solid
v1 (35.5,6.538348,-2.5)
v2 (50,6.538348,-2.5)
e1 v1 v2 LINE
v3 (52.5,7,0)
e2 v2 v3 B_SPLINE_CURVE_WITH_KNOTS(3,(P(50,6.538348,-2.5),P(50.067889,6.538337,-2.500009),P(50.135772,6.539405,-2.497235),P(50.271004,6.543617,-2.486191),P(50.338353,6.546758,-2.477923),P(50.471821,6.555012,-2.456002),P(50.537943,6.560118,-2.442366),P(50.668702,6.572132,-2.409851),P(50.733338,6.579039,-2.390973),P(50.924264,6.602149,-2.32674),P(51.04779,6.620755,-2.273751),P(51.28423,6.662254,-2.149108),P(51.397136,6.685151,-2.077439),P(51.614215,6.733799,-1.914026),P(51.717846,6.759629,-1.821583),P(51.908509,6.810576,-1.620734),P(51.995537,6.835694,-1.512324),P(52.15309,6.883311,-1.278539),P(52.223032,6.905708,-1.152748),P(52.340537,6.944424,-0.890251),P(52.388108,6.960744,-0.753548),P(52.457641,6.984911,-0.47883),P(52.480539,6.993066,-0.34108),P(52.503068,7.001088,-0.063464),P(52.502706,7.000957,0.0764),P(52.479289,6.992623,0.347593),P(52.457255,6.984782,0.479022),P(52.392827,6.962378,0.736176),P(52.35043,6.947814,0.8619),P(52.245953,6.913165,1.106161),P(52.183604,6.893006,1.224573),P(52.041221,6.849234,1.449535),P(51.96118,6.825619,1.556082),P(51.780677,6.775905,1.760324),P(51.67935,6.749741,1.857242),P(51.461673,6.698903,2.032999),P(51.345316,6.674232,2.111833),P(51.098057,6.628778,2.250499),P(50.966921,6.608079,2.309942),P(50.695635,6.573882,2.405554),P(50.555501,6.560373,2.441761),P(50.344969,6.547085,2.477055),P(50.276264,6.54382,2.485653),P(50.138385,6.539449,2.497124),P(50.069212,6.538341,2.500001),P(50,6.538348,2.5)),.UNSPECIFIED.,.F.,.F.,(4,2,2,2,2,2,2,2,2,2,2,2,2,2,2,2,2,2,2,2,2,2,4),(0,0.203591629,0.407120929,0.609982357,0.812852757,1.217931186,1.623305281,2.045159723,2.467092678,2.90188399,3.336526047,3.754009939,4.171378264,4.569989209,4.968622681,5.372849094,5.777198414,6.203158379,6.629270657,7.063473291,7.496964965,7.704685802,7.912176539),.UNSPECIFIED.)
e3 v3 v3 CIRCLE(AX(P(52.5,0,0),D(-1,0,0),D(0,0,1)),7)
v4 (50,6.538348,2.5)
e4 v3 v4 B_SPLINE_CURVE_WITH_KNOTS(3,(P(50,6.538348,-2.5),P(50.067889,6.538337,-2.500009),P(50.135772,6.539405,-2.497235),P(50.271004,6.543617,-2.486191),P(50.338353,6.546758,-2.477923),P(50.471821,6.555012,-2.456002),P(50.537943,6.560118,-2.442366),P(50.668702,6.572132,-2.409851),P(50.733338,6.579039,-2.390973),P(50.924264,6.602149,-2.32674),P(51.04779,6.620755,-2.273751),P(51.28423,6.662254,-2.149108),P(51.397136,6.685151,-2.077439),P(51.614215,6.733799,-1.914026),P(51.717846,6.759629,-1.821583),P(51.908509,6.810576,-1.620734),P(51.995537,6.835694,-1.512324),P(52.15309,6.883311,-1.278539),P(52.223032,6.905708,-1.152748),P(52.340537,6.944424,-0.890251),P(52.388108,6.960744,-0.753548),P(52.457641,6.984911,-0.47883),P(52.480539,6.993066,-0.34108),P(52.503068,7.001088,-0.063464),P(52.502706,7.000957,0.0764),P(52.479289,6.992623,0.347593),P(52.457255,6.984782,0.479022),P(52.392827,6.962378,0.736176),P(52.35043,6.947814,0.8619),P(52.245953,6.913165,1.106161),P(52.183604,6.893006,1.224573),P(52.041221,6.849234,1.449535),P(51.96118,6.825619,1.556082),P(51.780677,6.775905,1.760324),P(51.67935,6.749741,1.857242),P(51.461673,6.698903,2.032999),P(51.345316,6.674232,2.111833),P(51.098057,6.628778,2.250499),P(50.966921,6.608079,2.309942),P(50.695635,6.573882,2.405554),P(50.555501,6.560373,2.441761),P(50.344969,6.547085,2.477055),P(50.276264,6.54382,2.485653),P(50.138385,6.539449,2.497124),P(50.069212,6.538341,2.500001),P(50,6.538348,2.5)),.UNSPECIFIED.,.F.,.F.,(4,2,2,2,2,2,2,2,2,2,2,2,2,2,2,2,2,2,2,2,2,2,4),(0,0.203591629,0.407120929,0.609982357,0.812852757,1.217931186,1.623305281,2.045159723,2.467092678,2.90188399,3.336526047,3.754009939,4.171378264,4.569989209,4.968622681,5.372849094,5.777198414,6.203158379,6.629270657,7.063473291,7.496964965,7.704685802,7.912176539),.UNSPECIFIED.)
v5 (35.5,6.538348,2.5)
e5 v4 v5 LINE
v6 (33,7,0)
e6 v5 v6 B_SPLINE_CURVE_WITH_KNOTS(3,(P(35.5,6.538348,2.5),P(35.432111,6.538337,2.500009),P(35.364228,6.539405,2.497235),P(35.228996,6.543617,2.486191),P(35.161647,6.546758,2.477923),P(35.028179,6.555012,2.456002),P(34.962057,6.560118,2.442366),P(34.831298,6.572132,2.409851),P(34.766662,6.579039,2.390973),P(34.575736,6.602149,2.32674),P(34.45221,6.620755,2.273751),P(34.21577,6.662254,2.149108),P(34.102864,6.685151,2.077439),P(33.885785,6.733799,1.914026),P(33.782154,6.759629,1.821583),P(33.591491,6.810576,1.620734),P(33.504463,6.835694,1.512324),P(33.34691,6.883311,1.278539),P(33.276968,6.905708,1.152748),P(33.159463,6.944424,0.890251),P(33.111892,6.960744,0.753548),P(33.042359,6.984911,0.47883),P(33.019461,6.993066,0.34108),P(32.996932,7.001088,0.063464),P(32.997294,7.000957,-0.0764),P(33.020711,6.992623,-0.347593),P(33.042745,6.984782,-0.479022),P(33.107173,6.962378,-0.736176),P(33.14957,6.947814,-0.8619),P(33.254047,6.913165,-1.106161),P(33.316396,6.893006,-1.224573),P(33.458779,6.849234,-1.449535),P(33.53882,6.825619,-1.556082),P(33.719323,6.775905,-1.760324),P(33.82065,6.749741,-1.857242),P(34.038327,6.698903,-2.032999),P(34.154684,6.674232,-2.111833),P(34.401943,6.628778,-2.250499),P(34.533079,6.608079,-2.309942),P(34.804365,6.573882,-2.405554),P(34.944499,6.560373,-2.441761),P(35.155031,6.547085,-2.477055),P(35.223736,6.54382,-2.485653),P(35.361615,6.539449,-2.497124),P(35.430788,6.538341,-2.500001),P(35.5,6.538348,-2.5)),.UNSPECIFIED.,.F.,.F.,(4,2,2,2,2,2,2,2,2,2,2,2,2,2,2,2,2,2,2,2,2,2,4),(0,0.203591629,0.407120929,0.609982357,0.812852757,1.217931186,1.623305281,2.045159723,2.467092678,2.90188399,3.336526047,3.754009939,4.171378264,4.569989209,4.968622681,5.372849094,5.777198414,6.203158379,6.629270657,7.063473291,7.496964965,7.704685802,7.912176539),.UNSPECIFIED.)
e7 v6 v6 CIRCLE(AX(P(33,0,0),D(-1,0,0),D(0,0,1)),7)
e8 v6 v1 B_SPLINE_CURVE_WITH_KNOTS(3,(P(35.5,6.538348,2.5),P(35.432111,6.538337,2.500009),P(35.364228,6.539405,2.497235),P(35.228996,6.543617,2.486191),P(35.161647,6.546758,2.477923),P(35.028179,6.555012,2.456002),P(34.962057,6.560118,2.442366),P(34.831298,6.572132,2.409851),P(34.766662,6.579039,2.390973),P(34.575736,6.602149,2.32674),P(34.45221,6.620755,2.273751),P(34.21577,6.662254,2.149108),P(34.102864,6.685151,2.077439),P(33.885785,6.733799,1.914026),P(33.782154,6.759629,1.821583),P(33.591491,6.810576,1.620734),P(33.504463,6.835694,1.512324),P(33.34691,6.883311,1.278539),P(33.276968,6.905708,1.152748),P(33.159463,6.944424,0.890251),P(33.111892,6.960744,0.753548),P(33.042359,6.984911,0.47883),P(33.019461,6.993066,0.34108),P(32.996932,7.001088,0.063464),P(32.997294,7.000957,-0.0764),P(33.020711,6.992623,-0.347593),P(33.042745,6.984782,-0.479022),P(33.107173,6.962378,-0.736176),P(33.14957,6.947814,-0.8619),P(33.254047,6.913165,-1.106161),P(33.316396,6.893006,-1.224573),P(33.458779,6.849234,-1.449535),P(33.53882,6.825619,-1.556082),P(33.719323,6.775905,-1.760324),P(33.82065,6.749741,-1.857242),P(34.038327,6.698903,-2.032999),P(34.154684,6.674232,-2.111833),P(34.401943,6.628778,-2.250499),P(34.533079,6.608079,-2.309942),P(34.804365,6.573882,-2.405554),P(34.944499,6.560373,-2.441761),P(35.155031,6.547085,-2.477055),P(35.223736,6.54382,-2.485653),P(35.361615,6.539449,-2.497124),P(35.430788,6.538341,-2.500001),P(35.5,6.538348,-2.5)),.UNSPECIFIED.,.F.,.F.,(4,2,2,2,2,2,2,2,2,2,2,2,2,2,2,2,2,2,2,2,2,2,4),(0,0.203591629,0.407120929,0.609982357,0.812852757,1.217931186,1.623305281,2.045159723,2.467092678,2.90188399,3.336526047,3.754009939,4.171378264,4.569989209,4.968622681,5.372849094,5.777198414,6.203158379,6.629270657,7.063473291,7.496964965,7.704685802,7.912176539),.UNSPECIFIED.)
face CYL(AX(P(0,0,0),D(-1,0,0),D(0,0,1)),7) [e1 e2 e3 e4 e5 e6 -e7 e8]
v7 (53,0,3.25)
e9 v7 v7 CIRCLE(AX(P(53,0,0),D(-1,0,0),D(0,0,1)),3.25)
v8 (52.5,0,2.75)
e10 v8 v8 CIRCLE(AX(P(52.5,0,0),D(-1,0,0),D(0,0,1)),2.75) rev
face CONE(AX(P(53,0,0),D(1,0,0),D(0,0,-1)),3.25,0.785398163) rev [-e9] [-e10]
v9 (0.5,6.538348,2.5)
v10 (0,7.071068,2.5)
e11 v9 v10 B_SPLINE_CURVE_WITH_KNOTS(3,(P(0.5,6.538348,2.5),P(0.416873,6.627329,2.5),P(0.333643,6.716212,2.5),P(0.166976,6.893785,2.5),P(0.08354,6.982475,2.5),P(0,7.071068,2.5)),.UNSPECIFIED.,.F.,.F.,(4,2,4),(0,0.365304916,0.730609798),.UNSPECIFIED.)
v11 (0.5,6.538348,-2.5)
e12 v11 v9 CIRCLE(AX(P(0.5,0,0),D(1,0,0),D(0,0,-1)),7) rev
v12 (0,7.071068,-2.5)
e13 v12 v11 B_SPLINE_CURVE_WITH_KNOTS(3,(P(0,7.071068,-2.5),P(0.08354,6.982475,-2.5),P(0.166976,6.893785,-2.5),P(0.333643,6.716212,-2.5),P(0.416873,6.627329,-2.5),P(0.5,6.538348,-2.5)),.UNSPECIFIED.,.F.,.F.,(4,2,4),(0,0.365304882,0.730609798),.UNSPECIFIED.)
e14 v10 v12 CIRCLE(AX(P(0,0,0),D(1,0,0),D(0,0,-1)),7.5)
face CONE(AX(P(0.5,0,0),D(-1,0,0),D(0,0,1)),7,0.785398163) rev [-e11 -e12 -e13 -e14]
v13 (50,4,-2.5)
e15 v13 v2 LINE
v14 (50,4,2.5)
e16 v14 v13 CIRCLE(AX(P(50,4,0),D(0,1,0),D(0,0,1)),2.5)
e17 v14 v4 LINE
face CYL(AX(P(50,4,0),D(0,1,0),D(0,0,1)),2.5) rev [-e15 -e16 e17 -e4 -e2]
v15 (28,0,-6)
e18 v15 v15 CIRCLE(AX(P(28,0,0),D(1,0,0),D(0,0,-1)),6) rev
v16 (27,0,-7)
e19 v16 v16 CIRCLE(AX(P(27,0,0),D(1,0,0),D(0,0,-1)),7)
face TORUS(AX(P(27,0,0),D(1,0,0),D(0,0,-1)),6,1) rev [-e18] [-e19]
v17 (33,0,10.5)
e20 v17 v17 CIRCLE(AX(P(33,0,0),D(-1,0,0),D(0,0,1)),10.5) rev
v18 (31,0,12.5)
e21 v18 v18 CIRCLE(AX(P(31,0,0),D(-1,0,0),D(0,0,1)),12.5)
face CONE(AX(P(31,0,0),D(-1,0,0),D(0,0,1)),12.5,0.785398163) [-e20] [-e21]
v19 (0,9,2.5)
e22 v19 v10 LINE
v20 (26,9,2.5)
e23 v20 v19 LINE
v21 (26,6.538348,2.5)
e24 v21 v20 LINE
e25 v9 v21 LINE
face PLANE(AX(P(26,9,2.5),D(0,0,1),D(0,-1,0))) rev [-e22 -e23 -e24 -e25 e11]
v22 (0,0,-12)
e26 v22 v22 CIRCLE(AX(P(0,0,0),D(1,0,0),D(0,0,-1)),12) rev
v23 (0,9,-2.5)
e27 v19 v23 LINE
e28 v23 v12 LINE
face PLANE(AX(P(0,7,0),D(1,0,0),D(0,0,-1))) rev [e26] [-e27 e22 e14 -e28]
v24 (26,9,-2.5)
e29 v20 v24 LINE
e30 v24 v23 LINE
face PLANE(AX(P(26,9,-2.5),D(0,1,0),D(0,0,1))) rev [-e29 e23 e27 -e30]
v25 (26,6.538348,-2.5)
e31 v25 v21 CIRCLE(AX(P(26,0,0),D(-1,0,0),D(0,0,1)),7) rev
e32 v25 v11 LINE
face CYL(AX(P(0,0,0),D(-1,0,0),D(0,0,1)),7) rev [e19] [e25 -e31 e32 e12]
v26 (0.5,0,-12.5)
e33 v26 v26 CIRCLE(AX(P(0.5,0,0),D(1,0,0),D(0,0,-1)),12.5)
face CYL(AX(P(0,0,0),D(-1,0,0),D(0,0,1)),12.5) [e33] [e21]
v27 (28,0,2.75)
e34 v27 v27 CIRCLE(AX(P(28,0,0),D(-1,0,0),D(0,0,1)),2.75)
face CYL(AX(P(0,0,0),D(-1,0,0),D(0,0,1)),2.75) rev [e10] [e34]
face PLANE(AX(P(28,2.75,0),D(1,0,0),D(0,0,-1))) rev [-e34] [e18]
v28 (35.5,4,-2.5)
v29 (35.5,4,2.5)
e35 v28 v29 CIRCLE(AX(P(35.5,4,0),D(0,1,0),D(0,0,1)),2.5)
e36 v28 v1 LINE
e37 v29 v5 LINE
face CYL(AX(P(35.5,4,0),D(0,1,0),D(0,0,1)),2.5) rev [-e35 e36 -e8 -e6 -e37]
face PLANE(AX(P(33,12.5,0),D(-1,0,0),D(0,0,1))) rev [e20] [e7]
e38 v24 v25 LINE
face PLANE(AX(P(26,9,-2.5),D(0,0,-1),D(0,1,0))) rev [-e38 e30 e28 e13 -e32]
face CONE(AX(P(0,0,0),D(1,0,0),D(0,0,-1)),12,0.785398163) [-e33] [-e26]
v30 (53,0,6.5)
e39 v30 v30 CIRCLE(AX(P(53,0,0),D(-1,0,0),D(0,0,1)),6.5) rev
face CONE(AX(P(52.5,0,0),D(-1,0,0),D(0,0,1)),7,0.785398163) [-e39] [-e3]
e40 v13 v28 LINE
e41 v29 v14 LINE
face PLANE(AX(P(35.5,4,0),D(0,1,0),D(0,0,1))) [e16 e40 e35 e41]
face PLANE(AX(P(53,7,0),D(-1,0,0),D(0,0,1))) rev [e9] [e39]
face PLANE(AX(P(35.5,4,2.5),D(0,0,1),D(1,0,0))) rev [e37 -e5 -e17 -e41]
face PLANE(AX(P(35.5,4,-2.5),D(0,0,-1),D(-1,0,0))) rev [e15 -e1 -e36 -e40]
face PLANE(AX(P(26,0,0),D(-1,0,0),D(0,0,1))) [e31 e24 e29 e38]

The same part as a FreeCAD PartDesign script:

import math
import FreeCAD as App
import Part
import Sketcher
from FreeCAD import Vector


def edges_at(feature, points):
    """Names of the edges that pass closest to the given points."""
    edges = feature.Shape.Edges
    near = lambda p: min(range(len(edges)), key=lambda i: edges[i].distToShape(Part.Vertex(*p))[0])
    return sorted({f"Edge{near(p) + 1}" for p in points})


def add_polygon(sketch, points):
    """Adds a closed chain of lines whose ends are joined by coincident constraints."""
    first, n = sketch.GeometryCount, len(points)
    for a, b in zip(points, points[1:] + points[:1]):
        sketch.addGeometry(Part.LineSegment(App.Vector(*a, 0), App.Vector(*b, 0)), False)
    for i in range(n):
        sketch.addConstraint(Sketcher.Constraint("Coincident", first + i, 2, first + (i + 1) % n, 1))

doc = App.newDocument("Part")
params = doc.addObject("Spreadsheet::Sheet", "Params")
for row, (alias, value) in enumerate([
    ("sketch1_width", "28 mm"),
    ("sketch1_width2", "25 mm"),
    ("sketch1_width3", "20 mm"),
    ("sketch1_height", "5.5 mm"),
    ("sketch1_height2", "4.25 mm"),
    ("revolution_angle", "360 deg"),
    ("sketch2_width", "9 mm"),
    ("sketch2_height", "5 mm"),
    ("pocket1_length", "26 mm"),
    ("chamfer_size", "2 mm"),
    ("chamfer2_size", "0.5 mm"),
    ("fillet_radius", "1 mm"),
    ("sketch3_radius", "2.5 mm"),
    ("sketch3_width", "14.5 mm"),
    ("pocket2_length", "3 mm"),
], start=1):
    params.set(f"A{row}", alias)
    params.set(f"B{row}", "=" + value)
    params.setAlias(f"B{row}", alias)

body = doc.addObject("PartDesign::Body", "Body")

# Sketch on XY plane
sketch1 = body.newObject("Sketcher::SketchObject", "Sketch")
sketch1.AttachmentSupport = (doc.getObject("XY_Plane"), [""])
sketch1.MapMode = "FlatFace"
add_polygon(sketch1, [(0, 12.5), (0, 7), (28, 7), (28, 2.75), (53, 2.75), (53, 7), (33, 7), (33, 12.5)])  # lines 0-7
sketch1.addConstraint(Sketcher.Constraint("Vertical", 0))
sketch1.addConstraint(Sketcher.Constraint("Horizontal", 1))
sketch1.addConstraint(Sketcher.Constraint("Vertical", 2))
sketch1.addConstraint(Sketcher.Constraint("Horizontal", 3))
sketch1.addConstraint(Sketcher.Constraint("Vertical", 4))
sketch1.addConstraint(Sketcher.Constraint("Horizontal", 5))
sketch1.addConstraint(Sketcher.Constraint("Vertical", 6))
sketch1.addConstraint(Sketcher.Constraint("Horizontal", 7))
sketch1.addConstraint(Sketcher.Constraint("PointOnObject", 0, 2, -2))
sketch1.addConstraint(Sketcher.Constraint("Horizontal", 1, 2, 4, 2))
sketch1.addConstraint(Sketcher.Constraint("DistanceX", 1, 1, 1, 2, 28.0))
sketch1.addConstraint(Sketcher.Constraint("DistanceX", 3, 1, 3, 2, 25.0))
sketch1.addConstraint(Sketcher.Constraint("DistanceX", 5, 2, 5, 1, 20.0))
sketch1.addConstraint(Sketcher.Constraint("DistanceY", 0, 2, 0, 1, 5.5))
sketch1.addConstraint(Sketcher.Constraint("DistanceY", -1, 1, 0, 2, 7.0))
sketch1.addConstraint(Sketcher.Constraint("DistanceY", 2, 2, 2, 1, 4.25))
sketch1.setExpression("Constraints[18]", "Params.sketch1_width")
sketch1.setExpression("Constraints[19]", "Params.sketch1_width2")
sketch1.setExpression("Constraints[20]", "Params.sketch1_width3")
sketch1.setExpression("Constraints[21]", "Params.sketch1_height")
sketch1.setExpression("Constraints[23]", "Params.sketch1_height2")
revolution = body.newObject("PartDesign::Revolution", "Revolution")
revolution.Profile = sketch1
revolution.ReferenceAxis = (sketch1, ["H_Axis"])
revolution.setExpression("Angle", "Params.revolution_angle")

# Sketch on YZ plane
sketch2 = body.newObject("Sketcher::SketchObject", "Sketch001")
sketch2.AttachmentSupport = (doc.getObject("YZ_Plane"), [""])
sketch2.MapMode = "FlatFace"
add_polygon(sketch2, [(9, -2.5), (0, -2.5), (0, 2.5), (9, 2.5)])  # lines 0-3
sketch2.addConstraint(Sketcher.Constraint("Horizontal", 0))
sketch2.addConstraint(Sketcher.Constraint("Vertical", 1))
sketch2.addConstraint(Sketcher.Constraint("Horizontal", 2))
sketch2.addConstraint(Sketcher.Constraint("Vertical", 3))
sketch2.addConstraint(Sketcher.Constraint("Symmetric", 0, 2, 1, 2, -1, 1))
sketch2.addConstraint(Sketcher.Constraint("DistanceX", 0, 2, 0, 1, 9.0))
sketch2.addConstraint(Sketcher.Constraint("DistanceY", 1, 1, 1, 2, 5.0))
sketch2.setExpression("Constraints[9]", "Params.sketch2_width")
sketch2.setExpression("Constraints[10]", "Params.sketch2_height")
pocket1 = body.newObject("PartDesign::Pocket", "Pocket")
pocket1.Profile = sketch2
pocket1.setExpression("Length", "Params.pocket1_length")
pocket1.Reversed = True
doc.recompute()

chamfer = body.newObject("PartDesign::Chamfer", "Chamfer")
chamfer.Base = (pocket1, edges_at(pocket1, [(33, 0, -12.5)]))
chamfer.setExpression("Size", "Params.chamfer_size")
doc.recompute()

chamfer2 = body.newObject("PartDesign::Chamfer", "Chamfer001")
chamfer2.Base = (chamfer, edges_at(chamfer, [
    (0, -5.766, -3.969),
    (53, 0, -2.75),
    (53, 0, -7),
    (0, 0, -12.5),
]))
chamfer2.setExpression("Size", "Params.chamfer2_size")
doc.recompute()

fillet = body.newObject("PartDesign::Fillet", "Fillet")
fillet.Base = (chamfer2, edges_at(chamfer2, [(28, 0, -7)]))
fillet.setExpression("Radius", "Params.fillet_radius")

# Sketch on XZ plane
sketch3 = body.newObject("Sketcher::SketchObject", "Sketch002")
sketch3.AttachmentSupport = (doc.getObject("XZ_Plane"), [""])
sketch3.MapMode = "FlatFace"
sketch3.AttachmentOffset = App.Placement(Vector(0, 0, -7), App.Rotation())
sketch3.addGeometry(Part.LineSegment(Vector(50, -2.5, 0), Vector(35.5, -2.5, 0)), False)
sketch3.addGeometry(Part.ArcOfCircle(Part.Circle(Vector(35.5, 0, 0), Vector(0, 0, 1), 2.5), math.radians(90), math.radians(270)), False)
sketch3.addGeometry(Part.LineSegment(Vector(35.5, 2.5, 0), Vector(50, 2.5, 0)), False)
sketch3.addGeometry(Part.ArcOfCircle(Part.Circle(Vector(50, 0, 0), Vector(0, 0, 1), 2.5), math.radians(-90), math.radians(90)), False)
sketch3.addConstraint(Sketcher.Constraint("Tangent", 0, 2, 1, 2))
sketch3.addConstraint(Sketcher.Constraint("Tangent", 1, 1, 2, 1))
sketch3.addConstraint(Sketcher.Constraint("Tangent", 2, 2, 3, 2))
sketch3.addConstraint(Sketcher.Constraint("Tangent", 3, 1, 0, 1))
sketch3.addConstraint(Sketcher.Constraint("Horizontal", 0))
sketch3.addConstraint(Sketcher.Constraint("Horizontal", 2))
sketch3.addConstraint(Sketcher.Constraint("PointOnObject", 1, 3, -1))
sketch3.addConstraint(Sketcher.Constraint("Radius", 1, 2.5))
sketch3.addConstraint(Sketcher.Constraint("DistanceX", 0, 2, 0, 1, 14.5))
sketch3.addConstraint(Sketcher.Constraint("DistanceX", -1, 1, 3, 3, 50.0))
sketch3.setExpression("Constraints[7]", "Params.sketch3_radius")
sketch3.setExpression("Constraints[8]", "Params.sketch3_width")
pocket2 = body.newObject("PartDesign::Pocket", "Pocket001")
pocket2.Profile = sketch3
pocket2.setExpression("Length", "Params.pocket2_length")
pocket2.Reversed = True

doc.recompute()
